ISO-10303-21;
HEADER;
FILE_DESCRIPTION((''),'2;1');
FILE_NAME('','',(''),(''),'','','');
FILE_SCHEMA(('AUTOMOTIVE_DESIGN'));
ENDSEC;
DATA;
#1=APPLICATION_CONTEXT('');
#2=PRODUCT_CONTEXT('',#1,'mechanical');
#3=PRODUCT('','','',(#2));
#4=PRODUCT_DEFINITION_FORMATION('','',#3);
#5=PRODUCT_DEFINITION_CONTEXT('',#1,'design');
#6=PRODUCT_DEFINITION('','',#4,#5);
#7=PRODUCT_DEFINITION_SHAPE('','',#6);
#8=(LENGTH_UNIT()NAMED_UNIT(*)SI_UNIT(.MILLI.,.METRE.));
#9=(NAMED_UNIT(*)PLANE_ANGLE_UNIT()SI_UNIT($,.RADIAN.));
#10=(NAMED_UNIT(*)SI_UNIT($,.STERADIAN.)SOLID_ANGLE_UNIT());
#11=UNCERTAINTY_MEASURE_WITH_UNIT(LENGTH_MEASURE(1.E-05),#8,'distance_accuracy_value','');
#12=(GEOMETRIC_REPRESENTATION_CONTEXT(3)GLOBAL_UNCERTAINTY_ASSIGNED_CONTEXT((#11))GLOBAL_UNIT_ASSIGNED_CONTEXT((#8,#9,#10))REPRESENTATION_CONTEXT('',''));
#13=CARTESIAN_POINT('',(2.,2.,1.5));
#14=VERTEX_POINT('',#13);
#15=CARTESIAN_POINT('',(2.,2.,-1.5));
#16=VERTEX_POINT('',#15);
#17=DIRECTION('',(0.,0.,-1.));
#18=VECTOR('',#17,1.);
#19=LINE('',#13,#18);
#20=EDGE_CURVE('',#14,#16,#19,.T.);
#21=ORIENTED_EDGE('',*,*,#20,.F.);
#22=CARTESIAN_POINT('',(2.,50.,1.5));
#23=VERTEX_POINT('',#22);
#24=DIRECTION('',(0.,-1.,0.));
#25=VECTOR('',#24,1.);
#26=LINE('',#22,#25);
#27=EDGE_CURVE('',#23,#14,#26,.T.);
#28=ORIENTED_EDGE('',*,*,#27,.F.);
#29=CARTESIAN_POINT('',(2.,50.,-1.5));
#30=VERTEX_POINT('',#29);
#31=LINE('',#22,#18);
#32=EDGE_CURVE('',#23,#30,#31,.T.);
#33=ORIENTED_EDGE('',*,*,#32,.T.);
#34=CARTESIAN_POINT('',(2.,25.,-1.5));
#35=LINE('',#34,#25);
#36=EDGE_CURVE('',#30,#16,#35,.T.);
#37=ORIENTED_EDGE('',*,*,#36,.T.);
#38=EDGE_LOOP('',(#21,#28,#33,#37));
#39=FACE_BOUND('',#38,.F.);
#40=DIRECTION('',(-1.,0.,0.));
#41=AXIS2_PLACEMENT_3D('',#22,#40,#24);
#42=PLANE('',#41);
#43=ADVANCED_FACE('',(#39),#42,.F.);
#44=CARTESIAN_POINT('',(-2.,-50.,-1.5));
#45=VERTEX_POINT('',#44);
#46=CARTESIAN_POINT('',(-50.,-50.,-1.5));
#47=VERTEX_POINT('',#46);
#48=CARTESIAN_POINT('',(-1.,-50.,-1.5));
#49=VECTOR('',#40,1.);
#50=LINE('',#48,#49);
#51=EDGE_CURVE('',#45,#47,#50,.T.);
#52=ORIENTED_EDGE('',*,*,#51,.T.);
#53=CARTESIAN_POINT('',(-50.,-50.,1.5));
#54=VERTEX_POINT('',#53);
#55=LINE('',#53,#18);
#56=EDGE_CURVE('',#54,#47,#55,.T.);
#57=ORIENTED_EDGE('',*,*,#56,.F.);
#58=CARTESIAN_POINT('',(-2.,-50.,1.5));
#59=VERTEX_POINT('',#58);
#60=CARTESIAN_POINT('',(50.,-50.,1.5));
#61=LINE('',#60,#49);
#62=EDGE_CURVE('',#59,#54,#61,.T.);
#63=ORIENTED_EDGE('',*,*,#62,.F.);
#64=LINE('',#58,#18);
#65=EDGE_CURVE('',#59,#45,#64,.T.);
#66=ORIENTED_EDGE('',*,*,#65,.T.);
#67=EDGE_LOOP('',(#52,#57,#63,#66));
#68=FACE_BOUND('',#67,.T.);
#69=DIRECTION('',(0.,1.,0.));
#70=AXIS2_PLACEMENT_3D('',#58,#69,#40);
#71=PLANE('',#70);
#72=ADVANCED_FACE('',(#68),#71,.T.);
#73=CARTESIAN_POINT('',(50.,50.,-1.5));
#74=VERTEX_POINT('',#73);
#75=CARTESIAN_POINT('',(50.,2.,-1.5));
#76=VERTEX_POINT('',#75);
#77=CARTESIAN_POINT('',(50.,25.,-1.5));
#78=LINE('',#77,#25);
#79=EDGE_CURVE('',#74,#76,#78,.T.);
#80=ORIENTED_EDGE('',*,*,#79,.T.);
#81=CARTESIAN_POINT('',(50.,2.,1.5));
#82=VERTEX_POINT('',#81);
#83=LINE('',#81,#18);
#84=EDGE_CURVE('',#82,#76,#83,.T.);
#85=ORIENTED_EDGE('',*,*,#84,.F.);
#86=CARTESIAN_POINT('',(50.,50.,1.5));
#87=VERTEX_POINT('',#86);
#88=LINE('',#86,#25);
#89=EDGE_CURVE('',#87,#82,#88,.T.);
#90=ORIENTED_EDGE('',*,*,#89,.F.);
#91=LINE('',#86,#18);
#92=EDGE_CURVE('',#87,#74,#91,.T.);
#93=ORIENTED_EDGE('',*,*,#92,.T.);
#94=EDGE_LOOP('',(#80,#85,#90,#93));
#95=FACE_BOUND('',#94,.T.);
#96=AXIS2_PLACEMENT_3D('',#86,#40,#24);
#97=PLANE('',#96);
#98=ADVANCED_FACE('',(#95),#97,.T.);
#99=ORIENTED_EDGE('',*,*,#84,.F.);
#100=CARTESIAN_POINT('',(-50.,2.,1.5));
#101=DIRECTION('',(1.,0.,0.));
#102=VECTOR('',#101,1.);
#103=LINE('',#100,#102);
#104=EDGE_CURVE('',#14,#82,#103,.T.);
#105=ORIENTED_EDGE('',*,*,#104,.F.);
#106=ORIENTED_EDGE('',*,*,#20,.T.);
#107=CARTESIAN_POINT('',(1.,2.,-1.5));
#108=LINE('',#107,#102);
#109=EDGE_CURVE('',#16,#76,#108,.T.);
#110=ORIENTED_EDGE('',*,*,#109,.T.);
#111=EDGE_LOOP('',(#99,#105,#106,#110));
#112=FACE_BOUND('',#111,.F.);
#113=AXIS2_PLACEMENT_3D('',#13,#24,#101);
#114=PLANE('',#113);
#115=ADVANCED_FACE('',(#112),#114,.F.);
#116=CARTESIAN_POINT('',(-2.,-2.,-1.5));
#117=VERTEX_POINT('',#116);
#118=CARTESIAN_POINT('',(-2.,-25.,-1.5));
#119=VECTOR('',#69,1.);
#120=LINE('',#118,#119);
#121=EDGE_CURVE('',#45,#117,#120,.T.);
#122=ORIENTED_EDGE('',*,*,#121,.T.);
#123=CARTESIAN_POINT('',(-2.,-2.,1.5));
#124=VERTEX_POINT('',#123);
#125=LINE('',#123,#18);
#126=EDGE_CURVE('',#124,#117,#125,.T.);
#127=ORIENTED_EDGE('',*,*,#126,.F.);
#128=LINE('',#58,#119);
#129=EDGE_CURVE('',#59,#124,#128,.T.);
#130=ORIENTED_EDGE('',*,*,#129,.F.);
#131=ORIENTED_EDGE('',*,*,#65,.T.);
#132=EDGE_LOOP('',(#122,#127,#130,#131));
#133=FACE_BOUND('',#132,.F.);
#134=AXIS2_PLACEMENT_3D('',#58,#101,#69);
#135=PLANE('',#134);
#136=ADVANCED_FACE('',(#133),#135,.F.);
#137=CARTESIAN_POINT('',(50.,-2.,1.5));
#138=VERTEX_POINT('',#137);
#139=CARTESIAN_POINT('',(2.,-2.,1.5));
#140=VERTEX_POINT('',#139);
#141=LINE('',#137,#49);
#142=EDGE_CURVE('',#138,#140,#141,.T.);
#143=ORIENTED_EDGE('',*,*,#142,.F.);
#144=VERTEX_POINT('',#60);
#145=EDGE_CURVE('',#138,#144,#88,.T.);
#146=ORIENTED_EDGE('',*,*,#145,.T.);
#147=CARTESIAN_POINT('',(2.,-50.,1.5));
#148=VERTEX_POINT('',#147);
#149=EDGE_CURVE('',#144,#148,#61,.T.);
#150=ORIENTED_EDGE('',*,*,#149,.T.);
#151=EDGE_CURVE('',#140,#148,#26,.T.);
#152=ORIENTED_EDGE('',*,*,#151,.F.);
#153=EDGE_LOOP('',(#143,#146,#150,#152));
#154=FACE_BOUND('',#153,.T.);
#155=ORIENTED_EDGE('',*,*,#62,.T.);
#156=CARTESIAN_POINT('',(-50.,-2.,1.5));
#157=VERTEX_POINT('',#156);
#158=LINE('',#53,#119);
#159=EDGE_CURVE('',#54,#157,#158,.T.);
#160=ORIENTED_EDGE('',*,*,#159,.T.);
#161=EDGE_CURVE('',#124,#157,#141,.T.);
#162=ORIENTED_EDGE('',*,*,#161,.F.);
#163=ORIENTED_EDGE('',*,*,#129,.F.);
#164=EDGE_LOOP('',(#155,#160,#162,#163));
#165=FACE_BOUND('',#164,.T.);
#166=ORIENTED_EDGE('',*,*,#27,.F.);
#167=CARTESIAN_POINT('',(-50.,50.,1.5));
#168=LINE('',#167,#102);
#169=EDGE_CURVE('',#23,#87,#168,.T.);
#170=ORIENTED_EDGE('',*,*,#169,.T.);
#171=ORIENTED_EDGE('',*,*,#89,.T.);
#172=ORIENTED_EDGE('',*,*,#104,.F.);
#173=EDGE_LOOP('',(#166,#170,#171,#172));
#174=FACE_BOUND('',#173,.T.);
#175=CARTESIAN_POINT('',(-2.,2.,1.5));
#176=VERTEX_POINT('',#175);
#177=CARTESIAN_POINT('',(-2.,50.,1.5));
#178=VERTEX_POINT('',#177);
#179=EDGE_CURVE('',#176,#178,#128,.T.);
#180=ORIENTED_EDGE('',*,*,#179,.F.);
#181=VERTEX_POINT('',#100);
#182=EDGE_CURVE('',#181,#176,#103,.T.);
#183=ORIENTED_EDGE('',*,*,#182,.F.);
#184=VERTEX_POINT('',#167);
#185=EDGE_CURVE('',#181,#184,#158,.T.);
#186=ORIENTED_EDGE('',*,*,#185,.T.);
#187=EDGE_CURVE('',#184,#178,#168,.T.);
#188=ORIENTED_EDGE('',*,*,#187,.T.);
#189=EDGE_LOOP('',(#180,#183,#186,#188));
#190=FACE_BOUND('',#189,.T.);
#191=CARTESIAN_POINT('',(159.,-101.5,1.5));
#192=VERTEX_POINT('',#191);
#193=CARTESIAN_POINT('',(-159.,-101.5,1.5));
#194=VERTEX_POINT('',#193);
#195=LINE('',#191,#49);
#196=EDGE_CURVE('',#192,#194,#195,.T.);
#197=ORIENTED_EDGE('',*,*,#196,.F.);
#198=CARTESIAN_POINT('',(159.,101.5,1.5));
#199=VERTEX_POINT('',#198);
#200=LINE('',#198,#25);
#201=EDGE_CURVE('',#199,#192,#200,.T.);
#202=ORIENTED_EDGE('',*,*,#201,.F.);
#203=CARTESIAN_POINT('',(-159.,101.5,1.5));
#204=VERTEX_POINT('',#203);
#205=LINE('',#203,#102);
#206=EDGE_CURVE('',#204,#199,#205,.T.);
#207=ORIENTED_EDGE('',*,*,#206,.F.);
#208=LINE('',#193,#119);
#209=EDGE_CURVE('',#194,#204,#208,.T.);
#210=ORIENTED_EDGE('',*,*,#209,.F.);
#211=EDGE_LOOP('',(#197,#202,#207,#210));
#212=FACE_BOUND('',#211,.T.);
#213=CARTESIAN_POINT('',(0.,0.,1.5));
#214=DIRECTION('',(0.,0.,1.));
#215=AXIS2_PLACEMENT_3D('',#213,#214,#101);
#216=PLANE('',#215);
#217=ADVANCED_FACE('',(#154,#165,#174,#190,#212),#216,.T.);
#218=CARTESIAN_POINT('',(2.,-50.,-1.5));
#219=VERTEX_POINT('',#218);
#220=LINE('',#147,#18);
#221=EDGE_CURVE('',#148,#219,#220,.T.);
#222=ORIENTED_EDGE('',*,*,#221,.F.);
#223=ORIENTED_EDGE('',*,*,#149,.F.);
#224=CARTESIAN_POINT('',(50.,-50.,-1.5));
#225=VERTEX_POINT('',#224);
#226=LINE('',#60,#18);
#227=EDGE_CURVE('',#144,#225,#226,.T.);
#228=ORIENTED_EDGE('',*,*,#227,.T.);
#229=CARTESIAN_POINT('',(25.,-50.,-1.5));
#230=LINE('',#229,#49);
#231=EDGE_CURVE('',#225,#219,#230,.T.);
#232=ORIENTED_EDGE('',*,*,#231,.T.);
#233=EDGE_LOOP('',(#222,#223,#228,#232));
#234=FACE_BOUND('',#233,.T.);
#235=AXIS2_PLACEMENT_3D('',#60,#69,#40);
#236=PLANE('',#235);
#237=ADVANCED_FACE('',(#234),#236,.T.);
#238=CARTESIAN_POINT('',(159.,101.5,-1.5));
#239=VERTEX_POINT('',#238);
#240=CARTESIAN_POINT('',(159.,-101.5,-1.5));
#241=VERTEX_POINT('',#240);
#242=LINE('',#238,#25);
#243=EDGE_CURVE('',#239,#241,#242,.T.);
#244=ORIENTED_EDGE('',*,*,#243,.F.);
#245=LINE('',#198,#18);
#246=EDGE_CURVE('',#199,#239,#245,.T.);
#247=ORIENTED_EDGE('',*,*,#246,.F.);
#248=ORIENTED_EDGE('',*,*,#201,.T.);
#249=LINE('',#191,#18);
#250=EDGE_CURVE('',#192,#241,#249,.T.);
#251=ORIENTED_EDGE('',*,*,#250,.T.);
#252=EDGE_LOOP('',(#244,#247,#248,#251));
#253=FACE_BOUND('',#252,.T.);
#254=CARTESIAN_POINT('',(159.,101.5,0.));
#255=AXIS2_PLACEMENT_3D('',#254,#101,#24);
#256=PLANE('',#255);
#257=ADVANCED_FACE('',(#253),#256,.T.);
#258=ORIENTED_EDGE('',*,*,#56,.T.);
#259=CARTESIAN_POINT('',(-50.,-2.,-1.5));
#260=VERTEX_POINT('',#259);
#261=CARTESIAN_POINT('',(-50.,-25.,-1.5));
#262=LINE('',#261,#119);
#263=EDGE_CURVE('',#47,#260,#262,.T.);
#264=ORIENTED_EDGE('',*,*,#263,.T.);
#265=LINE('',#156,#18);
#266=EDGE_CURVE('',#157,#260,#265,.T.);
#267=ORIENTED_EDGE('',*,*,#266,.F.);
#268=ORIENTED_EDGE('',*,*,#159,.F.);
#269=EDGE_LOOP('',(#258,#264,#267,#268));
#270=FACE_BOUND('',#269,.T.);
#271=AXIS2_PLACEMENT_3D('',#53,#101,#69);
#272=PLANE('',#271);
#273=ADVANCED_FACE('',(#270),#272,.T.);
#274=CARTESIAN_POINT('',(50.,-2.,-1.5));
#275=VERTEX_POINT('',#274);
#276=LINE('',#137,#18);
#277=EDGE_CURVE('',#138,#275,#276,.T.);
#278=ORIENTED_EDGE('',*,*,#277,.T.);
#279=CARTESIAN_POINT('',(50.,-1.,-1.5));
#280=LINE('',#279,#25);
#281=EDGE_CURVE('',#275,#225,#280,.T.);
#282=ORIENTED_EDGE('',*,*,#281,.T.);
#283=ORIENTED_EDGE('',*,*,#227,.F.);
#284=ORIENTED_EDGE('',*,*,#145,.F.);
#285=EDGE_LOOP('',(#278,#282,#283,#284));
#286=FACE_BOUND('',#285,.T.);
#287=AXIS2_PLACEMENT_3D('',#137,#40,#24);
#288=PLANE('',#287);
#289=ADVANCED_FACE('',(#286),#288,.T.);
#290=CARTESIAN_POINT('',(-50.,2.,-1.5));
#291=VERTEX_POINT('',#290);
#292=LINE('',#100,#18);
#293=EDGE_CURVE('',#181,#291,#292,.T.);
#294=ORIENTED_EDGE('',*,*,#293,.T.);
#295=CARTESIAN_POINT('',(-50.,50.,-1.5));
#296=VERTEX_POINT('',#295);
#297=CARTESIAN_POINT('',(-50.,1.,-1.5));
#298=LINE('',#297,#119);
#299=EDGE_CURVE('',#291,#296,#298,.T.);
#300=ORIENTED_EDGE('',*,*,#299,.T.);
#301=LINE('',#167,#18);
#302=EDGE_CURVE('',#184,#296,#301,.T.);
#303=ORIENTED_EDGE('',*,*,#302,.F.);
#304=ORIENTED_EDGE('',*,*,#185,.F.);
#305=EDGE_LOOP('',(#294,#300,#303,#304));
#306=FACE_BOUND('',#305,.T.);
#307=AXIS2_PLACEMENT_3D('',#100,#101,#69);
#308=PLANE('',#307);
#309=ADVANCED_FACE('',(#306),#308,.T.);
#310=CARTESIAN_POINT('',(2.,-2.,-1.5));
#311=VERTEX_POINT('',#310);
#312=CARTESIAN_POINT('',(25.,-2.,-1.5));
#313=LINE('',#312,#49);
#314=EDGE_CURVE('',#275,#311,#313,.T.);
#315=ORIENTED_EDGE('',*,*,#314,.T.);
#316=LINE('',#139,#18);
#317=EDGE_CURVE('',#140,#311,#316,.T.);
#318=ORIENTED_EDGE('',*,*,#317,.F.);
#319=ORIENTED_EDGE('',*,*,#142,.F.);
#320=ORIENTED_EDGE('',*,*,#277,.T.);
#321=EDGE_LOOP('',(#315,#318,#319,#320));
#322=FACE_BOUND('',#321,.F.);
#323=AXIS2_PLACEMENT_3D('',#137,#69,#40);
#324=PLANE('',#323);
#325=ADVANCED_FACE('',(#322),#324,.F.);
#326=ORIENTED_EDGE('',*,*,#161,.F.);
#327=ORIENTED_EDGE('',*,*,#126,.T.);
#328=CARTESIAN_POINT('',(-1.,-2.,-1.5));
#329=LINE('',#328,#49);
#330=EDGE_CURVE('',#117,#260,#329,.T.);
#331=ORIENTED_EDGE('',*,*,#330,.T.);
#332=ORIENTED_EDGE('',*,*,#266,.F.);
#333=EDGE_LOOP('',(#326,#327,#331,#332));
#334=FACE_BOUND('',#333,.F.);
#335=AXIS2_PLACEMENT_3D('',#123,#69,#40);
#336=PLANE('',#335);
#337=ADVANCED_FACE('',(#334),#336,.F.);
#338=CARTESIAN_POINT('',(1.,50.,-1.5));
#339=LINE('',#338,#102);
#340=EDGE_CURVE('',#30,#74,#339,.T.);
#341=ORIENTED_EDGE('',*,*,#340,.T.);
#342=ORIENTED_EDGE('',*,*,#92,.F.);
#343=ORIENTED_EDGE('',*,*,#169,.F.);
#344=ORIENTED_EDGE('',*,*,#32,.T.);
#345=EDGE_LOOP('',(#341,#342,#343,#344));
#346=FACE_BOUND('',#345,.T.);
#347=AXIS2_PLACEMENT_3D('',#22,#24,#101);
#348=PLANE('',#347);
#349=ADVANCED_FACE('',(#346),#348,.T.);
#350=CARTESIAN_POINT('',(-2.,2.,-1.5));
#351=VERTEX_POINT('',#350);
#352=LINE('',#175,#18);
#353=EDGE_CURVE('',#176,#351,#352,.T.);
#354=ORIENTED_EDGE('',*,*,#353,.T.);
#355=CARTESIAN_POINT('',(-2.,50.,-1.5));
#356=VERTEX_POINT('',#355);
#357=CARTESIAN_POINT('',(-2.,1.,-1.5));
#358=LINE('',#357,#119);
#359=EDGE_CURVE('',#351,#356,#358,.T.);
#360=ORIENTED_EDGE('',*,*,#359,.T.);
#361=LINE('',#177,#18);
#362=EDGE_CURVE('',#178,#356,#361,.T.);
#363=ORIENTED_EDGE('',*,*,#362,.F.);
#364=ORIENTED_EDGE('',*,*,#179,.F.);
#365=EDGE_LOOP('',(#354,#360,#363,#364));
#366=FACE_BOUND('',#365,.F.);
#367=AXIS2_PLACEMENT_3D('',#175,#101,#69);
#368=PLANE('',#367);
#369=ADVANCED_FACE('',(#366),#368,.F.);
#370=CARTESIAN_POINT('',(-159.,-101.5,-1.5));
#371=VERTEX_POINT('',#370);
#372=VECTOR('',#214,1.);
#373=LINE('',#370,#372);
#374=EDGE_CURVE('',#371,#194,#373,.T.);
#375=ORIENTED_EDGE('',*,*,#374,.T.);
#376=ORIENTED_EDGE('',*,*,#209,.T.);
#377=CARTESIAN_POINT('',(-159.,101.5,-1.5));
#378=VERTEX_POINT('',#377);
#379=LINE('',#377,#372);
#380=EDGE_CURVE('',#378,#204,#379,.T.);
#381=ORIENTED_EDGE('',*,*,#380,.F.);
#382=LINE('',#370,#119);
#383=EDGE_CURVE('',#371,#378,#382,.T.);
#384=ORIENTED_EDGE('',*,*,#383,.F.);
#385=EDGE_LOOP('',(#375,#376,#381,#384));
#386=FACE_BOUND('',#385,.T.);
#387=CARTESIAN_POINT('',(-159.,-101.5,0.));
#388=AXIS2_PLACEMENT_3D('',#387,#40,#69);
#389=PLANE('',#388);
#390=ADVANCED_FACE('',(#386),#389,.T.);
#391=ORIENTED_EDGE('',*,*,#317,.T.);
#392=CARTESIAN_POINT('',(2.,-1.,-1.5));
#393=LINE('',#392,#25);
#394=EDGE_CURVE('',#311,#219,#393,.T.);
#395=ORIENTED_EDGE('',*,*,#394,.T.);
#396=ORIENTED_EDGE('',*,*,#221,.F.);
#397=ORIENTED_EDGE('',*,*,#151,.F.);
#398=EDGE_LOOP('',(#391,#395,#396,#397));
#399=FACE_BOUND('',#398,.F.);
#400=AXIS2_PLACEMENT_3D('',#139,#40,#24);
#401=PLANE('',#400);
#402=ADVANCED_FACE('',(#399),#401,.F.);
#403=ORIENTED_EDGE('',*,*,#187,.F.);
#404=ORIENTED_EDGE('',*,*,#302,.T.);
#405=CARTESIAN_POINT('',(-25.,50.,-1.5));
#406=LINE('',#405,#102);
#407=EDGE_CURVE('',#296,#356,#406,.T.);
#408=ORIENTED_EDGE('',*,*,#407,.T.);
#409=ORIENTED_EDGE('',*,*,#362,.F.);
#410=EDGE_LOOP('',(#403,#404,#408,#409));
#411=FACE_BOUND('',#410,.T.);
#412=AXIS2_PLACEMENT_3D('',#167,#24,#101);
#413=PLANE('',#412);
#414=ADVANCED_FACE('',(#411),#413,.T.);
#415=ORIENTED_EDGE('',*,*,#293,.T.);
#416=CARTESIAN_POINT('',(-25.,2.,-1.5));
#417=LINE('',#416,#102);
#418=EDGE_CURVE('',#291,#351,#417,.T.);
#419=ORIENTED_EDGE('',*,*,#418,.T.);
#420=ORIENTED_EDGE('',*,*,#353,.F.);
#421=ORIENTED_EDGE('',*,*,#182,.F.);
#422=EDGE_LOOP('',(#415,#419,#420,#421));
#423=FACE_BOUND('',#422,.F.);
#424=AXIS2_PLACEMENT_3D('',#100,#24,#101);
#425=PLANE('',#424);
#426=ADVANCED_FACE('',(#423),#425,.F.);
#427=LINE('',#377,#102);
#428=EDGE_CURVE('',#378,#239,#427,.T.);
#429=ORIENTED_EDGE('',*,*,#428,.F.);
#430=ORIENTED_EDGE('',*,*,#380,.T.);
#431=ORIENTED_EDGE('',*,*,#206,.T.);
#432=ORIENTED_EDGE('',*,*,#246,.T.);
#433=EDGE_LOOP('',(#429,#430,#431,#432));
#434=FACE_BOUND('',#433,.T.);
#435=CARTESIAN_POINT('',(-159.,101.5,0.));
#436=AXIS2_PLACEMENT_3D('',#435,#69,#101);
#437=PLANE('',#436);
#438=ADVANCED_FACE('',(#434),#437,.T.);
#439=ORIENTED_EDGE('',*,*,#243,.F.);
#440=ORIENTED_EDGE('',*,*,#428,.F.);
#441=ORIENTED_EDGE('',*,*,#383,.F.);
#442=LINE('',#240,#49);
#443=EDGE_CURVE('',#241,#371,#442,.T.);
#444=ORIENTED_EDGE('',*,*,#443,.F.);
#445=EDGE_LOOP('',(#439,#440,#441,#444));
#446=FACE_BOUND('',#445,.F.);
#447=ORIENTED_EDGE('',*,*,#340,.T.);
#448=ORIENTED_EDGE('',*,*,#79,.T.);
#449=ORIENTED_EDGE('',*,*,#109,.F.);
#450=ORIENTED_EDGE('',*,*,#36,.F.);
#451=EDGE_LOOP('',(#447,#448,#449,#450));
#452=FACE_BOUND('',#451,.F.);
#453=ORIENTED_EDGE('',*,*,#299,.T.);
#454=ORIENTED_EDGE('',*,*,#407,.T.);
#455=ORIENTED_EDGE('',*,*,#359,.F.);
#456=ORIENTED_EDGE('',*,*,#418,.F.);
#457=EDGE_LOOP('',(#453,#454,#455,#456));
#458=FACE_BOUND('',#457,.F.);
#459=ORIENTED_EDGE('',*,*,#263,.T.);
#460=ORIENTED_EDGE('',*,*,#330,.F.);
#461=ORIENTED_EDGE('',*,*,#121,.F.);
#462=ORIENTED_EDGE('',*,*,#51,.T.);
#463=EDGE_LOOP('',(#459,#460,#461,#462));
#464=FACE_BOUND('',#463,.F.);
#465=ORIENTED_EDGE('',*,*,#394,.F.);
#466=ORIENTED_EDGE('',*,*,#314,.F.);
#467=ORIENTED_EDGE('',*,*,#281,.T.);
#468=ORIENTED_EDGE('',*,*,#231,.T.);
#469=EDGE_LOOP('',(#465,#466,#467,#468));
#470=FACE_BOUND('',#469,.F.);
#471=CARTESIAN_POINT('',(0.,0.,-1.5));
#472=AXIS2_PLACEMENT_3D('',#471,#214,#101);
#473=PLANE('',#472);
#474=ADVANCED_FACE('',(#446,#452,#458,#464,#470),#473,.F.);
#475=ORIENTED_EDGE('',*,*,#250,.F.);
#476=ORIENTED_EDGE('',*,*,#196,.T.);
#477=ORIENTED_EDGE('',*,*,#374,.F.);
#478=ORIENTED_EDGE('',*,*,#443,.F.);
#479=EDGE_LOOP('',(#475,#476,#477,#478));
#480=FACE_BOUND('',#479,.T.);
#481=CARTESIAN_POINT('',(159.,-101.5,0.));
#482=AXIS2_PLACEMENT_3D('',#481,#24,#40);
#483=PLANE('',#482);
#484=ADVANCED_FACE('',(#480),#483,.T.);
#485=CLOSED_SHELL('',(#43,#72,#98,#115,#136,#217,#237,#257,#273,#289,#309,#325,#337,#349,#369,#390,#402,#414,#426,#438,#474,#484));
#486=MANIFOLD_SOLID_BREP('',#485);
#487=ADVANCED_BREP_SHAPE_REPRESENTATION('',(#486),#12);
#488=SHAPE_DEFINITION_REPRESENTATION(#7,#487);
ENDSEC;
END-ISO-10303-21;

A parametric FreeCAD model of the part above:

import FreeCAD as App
import Part
import Sketcher

V = App.Vector
Q = App.Units.Quantity

doc = App.newDocument("Part")
body = doc.addObject("PartDesign::Body", "Body")

sketch1 = body.newObject("Sketcher::SketchObject", "Sketch")
sketch1.AttachmentSupport = (doc.getObject("XY_Plane"), [""])
sketch1.MapMode = "FlatFace"
sketch1.addGeometry([
    Part.LineSegment(V(159, 102, 0), V(-159, 102, 0)),
    Part.LineSegment(V(-159, 102, 0), V(-159, -102, 0)),
    Part.LineSegment(V(-159, -102, 0), V(159, -102, 0)),
    Part.LineSegment(V(159, -102, 0), V(159, 102, 0)),
], False)
sketch1.addConstraint([
    Sketcher.Constraint("Coincident", 0, 2, 1, 1),
    Sketcher.Constraint("Coincident", 1, 2, 2, 1),
    Sketcher.Constraint("Coincident", 2, 2, 3, 1),
    Sketcher.Constraint("Coincident", 3, 2, 0, 1),
    Sketcher.Constraint("Horizontal", 0),
    Sketcher.Constraint("Vertical", 1),
    Sketcher.Constraint("Horizontal", 2),
    Sketcher.Constraint("Vertical", 3),
    Sketcher.Constraint("Symmetric", 0, 2, 2, 2, -1, 1),
    Sketcher.Constraint("DistanceX", 0, 2, 0, 1, Q("318 mm")),
    Sketcher.Constraint("DistanceY", 1, 2, 1, 1, Q("203 mm")),
])
pad1 = body.newObject("PartDesign::Pad", "Pad")
pad1.Profile = sketch1
pad1.Length = 3
pad1.Midplane = True

sketch2 = body.newObject("Sketcher::SketchObject", "Sketch001")
sketch2.AttachmentSupport = (doc.getObject("XY_Plane"), [""])
sketch2.MapMode = "FlatFace"
sketch2.AttachmentOffset = App.Placement(V(0, 0, 1.5), App.Rotation())
sketch2.addGeometry([
    Part.LineSegment(V(2, -50, 0), V(50, -50, 0)),
    Part.LineSegment(V(50, -50, 0), V(50, -2, 0)),
    Part.LineSegment(V(50, -2, 0), V(2, -2, 0)),
    Part.LineSegment(V(2, -2, 0), V(2, -50, 0)),
    Part.LineSegment(V(-50, -50, 0), V(-2, -50, 0)),
    Part.LineSegment(V(-2, -50, 0), V(-2, -2, 0)),
    Part.LineSegment(V(-2, -2, 0), V(-50, -2, 0)),
    Part.LineSegment(V(-50, -2, 0), V(-50, -50, 0)),
    Part.LineSegment(V(2, 2, 0), V(50, 2, 0)),
    Part.LineSegment(V(50, 2, 0), V(50, 50, 0)),
    Part.LineSegment(V(50, 50, 0), V(2, 50, 0)),
    Part.LineSegment(V(2, 50, 0), V(2, 2, 0)),
    Part.LineSegment(V(-50, 2, 0), V(-2, 2, 0)),
    Part.LineSegment(V(-2, 2, 0), V(-2, 50, 0)),
    Part.LineSegment(V(-2, 50, 0), V(-50, 50, 0)),
    Part.LineSegment(V(-50, 50, 0), V(-50, 2, 0)),
], False)
sketch2.addConstraint([
    Sketcher.Constraint("Coincident", 0, 2, 1, 1),
    Sketcher.Constraint("Coincident", 1, 2, 2, 1),
    Sketcher.Constraint("Coincident", 2, 2, 3, 1),
    Sketcher.Constraint("Coincident", 3, 2, 0, 1),
    Sketcher.Constraint("Coincident", 4, 2, 5, 1),
    Sketcher.Constraint("Coincident", 5, 2, 6, 1),
    Sketcher.Constraint("Coincident", 6, 2, 7, 1),
    Sketcher.Constraint("Coincident", 7, 2, 4, 1),
    Sketcher.Constraint("Coincident", 8, 2, 9, 1),
    Sketcher.Constraint("Coincident", 9, 2, 10, 1),
    Sketcher.Constraint("Coincident", 10, 2, 11, 1),
    Sketcher.Constraint("Coincident", 11, 2, 8, 1),
    Sketcher.Constraint("Coincident", 12, 2, 13, 1),
    Sketcher.Constraint("Coincident", 13, 2, 14, 1),
    Sketcher.Constraint("Coincident", 14, 2, 15, 1),
    Sketcher.Constraint("Coincident", 15, 2, 12, 1),
    Sketcher.Constraint("Horizontal", 0),
    Sketcher.Constraint("Vertical", 1),
    Sketcher.Constraint("Horizontal", 2),
    Sketcher.Constraint("Vertical", 3),
    Sketcher.Constraint("Horizontal", 4),
    Sketcher.Constraint("Vertical", 5),
    Sketcher.Constraint("Horizontal", 6),
    Sketcher.Constraint("Vertical", 7),
    Sketcher.Constraint("Horizontal", 8),
    Sketcher.Constraint("Vertical", 9),
    Sketcher.Constraint("Horizontal", 10),
    Sketcher.Constraint("Vertical", 11),
    Sketcher.Constraint("Horizontal", 12),
    Sketcher.Constraint("Vertical", 13),
    Sketcher.Constraint("Horizontal", 14),
    Sketcher.Constraint("Vertical", 15),
    Sketcher.Constraint("Symmetric", 6, 2, 8, 2, -1, 1),
    Sketcher.Constraint("Symmetric", 4, 2, 10, 2, -1, 1),
    Sketcher.Constraint("Symmetric", 2, 2, 12, 2, -1, 1),
    Sketcher.Constraint("Symmetric", 0, 2, 14, 2, -1, 1),
    Sketcher.Constraint("Symmetric", 3, 2, 4, 2, -2),
    Sketcher.Constraint("Symmetric", 1, 2, 6, 2, -2),
    Sketcher.Constraint("Equal", 14, 1),
    Sketcher.Constraint("DistanceX", 0, 1, 0, 2, Q("48 mm")),
    Sketcher.Constraint("DistanceX", 4, 2, 3, 2, Q("4 mm")),
    Sketcher.Constraint("DistanceY", 1, 2, 8, 2, Q("4 mm")),
])
pocket1 = body.newObject("PartDesign::Pocket", "Pocket")
pocket1.Profile = sketch2
pocket1.Type = "ThroughAll"

doc.recompute()
